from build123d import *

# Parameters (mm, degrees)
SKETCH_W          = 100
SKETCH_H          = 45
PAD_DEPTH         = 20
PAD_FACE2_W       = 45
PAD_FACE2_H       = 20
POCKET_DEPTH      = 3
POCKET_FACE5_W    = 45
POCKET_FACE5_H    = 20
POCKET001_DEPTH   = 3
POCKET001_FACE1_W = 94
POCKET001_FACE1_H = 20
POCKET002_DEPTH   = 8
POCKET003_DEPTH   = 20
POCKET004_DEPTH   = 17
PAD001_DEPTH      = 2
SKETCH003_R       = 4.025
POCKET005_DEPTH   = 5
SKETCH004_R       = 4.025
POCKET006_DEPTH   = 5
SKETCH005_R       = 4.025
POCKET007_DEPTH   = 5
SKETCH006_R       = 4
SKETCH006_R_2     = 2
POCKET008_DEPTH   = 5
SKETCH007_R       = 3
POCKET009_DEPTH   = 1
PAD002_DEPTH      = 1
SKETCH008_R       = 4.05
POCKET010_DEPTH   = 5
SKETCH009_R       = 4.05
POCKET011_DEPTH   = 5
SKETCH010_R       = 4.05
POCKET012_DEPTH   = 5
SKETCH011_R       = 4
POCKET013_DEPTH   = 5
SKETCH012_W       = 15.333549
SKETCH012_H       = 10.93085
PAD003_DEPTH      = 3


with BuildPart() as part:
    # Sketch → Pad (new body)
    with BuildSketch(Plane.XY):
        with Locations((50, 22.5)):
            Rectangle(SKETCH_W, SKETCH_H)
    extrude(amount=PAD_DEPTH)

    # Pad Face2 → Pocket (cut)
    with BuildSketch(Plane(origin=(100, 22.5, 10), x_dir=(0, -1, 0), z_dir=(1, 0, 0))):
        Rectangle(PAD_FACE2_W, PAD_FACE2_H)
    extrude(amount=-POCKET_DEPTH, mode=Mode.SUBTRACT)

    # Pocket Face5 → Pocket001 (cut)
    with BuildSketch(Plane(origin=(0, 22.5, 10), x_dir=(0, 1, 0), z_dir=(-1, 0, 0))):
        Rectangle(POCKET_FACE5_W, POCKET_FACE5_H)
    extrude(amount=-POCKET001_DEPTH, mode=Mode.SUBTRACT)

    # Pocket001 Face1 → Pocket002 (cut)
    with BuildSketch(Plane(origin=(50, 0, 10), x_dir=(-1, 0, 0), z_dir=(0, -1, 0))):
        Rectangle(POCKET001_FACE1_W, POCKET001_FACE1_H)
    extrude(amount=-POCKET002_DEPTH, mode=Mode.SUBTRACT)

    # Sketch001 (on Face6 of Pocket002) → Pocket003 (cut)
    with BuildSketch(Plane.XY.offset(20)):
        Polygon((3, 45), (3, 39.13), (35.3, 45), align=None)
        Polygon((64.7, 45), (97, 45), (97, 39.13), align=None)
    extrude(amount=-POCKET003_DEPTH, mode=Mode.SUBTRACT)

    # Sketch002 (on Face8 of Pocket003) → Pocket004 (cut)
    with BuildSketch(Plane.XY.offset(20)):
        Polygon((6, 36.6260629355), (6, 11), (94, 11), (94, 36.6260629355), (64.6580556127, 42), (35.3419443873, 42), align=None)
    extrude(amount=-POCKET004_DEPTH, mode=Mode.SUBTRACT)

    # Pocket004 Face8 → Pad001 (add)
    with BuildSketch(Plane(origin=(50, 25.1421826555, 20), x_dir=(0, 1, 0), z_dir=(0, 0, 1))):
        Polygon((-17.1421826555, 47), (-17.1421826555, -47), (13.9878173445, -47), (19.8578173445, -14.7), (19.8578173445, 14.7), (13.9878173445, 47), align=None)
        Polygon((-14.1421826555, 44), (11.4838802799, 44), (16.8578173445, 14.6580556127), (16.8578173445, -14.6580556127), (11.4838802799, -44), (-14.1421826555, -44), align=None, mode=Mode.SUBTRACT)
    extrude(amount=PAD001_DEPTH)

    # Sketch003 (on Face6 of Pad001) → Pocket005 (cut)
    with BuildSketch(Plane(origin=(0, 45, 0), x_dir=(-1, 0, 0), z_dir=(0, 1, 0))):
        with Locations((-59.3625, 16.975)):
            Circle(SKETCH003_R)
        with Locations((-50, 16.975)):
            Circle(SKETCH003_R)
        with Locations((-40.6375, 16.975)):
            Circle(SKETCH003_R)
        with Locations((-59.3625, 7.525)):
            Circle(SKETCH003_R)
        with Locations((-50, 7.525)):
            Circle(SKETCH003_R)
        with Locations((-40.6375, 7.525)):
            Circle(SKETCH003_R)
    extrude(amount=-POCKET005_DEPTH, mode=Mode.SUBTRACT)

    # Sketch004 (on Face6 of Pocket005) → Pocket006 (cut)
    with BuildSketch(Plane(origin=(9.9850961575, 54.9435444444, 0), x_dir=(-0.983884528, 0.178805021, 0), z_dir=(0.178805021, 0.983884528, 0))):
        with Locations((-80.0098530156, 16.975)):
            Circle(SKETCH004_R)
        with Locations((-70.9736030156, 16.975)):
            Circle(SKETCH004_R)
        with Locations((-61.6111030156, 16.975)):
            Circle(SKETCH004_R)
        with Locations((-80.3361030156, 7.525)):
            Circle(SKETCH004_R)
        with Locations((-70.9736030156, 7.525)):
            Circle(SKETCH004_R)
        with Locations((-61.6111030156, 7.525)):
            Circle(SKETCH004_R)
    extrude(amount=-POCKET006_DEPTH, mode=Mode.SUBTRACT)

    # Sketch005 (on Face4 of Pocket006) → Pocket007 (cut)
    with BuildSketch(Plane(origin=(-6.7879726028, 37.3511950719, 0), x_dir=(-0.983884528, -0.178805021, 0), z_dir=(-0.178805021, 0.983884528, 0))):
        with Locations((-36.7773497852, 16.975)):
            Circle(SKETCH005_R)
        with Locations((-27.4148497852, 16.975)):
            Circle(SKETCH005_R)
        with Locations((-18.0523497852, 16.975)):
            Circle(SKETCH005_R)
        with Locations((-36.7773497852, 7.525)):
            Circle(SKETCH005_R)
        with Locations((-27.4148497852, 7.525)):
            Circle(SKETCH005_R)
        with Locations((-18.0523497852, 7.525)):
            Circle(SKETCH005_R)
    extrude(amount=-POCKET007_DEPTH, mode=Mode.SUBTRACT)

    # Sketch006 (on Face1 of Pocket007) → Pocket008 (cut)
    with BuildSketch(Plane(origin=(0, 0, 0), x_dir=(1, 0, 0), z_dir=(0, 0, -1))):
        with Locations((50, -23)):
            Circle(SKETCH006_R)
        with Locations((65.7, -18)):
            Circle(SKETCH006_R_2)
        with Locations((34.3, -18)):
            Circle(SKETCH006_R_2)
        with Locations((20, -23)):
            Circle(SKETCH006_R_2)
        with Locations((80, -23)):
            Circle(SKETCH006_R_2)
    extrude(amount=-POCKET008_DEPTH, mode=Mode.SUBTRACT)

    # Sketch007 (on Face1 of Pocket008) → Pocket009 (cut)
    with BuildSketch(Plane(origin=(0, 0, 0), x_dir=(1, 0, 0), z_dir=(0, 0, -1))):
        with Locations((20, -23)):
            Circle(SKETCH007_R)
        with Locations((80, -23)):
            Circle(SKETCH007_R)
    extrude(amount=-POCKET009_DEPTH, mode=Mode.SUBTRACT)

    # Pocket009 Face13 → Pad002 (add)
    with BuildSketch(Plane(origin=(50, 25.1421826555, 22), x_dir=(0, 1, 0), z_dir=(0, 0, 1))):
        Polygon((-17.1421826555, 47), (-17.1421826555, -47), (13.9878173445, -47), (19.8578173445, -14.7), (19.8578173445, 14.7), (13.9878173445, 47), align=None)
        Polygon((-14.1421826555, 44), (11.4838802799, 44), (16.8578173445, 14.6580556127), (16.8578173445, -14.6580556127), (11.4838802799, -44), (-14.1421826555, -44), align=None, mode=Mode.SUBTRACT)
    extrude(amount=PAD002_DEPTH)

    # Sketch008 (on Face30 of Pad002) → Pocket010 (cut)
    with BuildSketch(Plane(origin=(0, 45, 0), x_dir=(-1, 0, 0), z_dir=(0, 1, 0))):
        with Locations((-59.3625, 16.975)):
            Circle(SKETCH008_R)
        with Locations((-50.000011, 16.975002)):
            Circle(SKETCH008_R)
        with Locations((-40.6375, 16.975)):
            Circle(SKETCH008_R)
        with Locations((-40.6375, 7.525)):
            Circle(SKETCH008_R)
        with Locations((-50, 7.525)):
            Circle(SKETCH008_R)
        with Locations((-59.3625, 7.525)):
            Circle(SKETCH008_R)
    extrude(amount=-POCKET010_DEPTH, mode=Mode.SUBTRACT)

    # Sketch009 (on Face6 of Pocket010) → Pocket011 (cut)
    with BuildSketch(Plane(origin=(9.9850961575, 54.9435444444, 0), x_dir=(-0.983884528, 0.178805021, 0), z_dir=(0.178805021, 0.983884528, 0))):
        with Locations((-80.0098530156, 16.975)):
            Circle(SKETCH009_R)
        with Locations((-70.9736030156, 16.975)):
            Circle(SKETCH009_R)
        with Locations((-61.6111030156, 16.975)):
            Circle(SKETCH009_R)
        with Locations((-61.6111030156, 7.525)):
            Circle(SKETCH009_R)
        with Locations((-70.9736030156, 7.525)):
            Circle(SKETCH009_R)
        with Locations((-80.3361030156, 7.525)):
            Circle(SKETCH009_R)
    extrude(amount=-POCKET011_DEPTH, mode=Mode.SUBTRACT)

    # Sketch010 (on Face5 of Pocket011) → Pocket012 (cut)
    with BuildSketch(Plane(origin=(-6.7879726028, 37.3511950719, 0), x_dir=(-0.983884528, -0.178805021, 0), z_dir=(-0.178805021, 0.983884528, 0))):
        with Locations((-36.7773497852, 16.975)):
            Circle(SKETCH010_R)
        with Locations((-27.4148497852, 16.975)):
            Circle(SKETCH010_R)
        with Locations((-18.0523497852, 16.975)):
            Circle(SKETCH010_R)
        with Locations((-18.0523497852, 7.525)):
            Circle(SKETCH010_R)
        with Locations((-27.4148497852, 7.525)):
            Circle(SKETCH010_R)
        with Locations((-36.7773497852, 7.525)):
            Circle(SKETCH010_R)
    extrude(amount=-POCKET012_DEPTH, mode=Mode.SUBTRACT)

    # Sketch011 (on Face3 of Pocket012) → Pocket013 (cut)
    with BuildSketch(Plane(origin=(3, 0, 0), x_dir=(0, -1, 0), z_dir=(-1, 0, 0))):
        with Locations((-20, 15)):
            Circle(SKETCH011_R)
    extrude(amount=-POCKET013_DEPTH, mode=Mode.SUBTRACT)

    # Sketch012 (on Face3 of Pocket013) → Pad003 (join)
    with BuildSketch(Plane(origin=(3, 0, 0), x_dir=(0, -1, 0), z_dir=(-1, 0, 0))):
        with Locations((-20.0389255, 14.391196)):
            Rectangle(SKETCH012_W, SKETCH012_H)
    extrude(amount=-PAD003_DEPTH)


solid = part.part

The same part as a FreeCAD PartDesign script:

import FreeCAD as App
import Part
import Sketcher
from FreeCAD import Vector

doc = App.newDocument("Part")
body = doc.addObject("PartDesign::Body", "Body")

# Sketch on XY plane
sketch1 = body.newObject("Sketcher::SketchObject", "Sketch")
sketch1.AttachmentSupport = (doc.getObject("XY_Plane"), [""])
sketch1.MapMode = "FlatFace"
sketch1.addGeometry([
    Part.LineSegment(Vector(0, 45, 0), Vector(0, 0, 0)),
    Part.LineSegment(Vector(0, 0, 0), Vector(100, 0, 0)),
    Part.LineSegment(Vector(100, 0, 0), Vector(100, 45, 0)),
    Part.LineSegment(Vector(100, 45, 0), Vector(0, 45, 0)),
], False)
sketch1.addConstraint([
    Sketcher.Constraint("Coincident", 0, 2, 1, 1),
    Sketcher.Constraint("Coincident", 1, 2, 2, 1),
    Sketcher.Constraint("Coincident", 2, 2, 3, 1),
    Sketcher.Constraint("Coincident", 3, 2, 0, 1),
    Sketcher.Constraint("Vertical", 0),
    Sketcher.Constraint("Horizontal", 1),
    Sketcher.Constraint("Vertical", 2),
    Sketcher.Constraint("Horizontal", 3),
    Sketcher.Constraint("Coincident", 0, 2, -1, 1),
    Sketcher.Constraint("DistanceX", 1, 1, 1, 2, 100.0),
    Sketcher.Constraint("DistanceY", 0, 2, 0, 1, 45.0),
])
pad1 = body.newObject("PartDesign::Pad", "Pad")
pad1.Profile = sketch1
pad1.Length = 20

# Sketch on YZ plane
sketch2 = body.newObject("Sketcher::SketchObject", "Sketch001")
sketch2.AttachmentSupport = (doc.getObject("YZ_Plane"), [""])
sketch2.MapMode = "FlatFace"
sketch2.AttachmentOffset = App.Placement(Vector(0, 0, 100), App.Rotation())
sketch2.addGeometry([
    Part.LineSegment(Vector(45, 0, 0), Vector(45, 20, 0)),
    Part.LineSegment(Vector(45, 20, 0), Vector(0, 20, 0)),
    Part.LineSegment(Vector(0, 20, 0), Vector(0, 0, 0)),
    Part.LineSegment(Vector(0, 0, 0), Vector(45, 0, 0)),
], False)
sketch2.addConstraint([
    Sketcher.Constraint("Coincident", 0, 2, 1, 1),
    Sketcher.Constraint("Coincident", 1, 2, 2, 1),
    Sketcher.Constraint("Coincident", 2, 2, 3, 1),
    Sketcher.Constraint("Coincident", 3, 2, 0, 1),
    Sketcher.Constraint("Vertical", 0),
    Sketcher.Constraint("Horizontal", 1),
    Sketcher.Constraint("Vertical", 2),
    Sketcher.Constraint("Horizontal", 3),
    Sketcher.Constraint("Coincident", 2, 2, -1, 1),
    Sketcher.Constraint("DistanceX", 1, 2, 1, 1, 45.0),
    Sketcher.Constraint("DistanceY", 0, 1, 0, 2, 20.0),
])
pocket1 = body.newObject("PartDesign::Pocket", "Pocket")
pocket1.Profile = sketch2
pocket1.Length = 3

# Sketch on YZ plane
sketch3 = body.newObject("Sketcher::SketchObject", "Sketch002")
sketch3.AttachmentSupport = (doc.getObject("YZ_Plane"), [""])
sketch3.MapMode = "FlatFace"
sketch3.addGeometry([
    Part.LineSegment(Vector(0, 0, 0), Vector(0, 20, 0)),
    Part.LineSegment(Vector(0, 20, 0), Vector(45, 20, 0)),
    Part.LineSegment(Vector(45, 20, 0), Vector(45, 0, 0)),
    Part.LineSegment(Vector(45, 0, 0), Vector(0, 0, 0)),
], False)
sketch3.addConstraint([
    Sketcher.Constraint("Coincident", 0, 2, 1, 1),
    Sketcher.Constraint("Coincident", 1, 2, 2, 1),
    Sketcher.Constraint("Coincident", 2, 2, 3, 1),
    Sketcher.Constraint("Coincident", 3, 2, 0, 1),
    Sketcher.Constraint("Vertical", 0),
    Sketcher.Constraint("Horizontal", 1),
    Sketcher.Constraint("Vertical", 2),
    Sketcher.Constraint("Horizontal", 3),
    Sketcher.Constraint("Coincident", 3, 2, -1, 1),
    Sketcher.Constraint("DistanceX", 1, 1, 1, 2, 45.0),
    Sketcher.Constraint("DistanceY", 0, 1, 0, 2, 20.0),
])
pocket2 = body.newObject("PartDesign::Pocket", "Pocket001")
pocket2.Profile = sketch3
pocket2.Length = 3
pocket2.Reversed = True

# Sketch on XZ plane
sketch4 = body.newObject("Sketcher::SketchObject", "Sketch003")
sketch4.AttachmentSupport = (doc.getObject("XZ_Plane"), [""])
sketch4.MapMode = "FlatFace"
sketch4.addGeometry([
    Part.LineSegment(Vector(97, 0, 0), Vector(97, 20, 0)),
    Part.LineSegment(Vector(97, 20, 0), Vector(3, 20, 0)),
    Part.LineSegment(Vector(3, 20, 0), Vector(3, 0, 0)),
    Part.LineSegment(Vector(3, 0, 0), Vector(97, 0, 0)),
], False)
sketch4.addConstraint([
    Sketcher.Constraint("Coincident", 0, 2, 1, 1),
    Sketcher.Constraint("Coincident", 1, 2, 2, 1),
    Sketcher.Constraint("Coincident", 2, 2, 3, 1),
    Sketcher.Constraint("Coincident", 3, 2, 0, 1),
    Sketcher.Constraint("Vertical", 0),
    Sketcher.Constraint("Horizontal", 1),
    Sketcher.Constraint("Vertical", 2),
    Sketcher.Constraint("Horizontal", 3),
    Sketcher.Constraint("PointOnObject", 2, 2, -1),
    Sketcher.Constraint("DistanceX", 1, 2, 1, 1, 94.0),
    Sketcher.Constraint("DistanceY", 0, 1, 0, 2, 20.0),
    Sketcher.Constraint("DistanceX", -1, 1, 0, 2, 97.0),
])
pocket3 = body.newObject("PartDesign::Pocket", "Pocket002")
pocket3.Profile = sketch4
pocket3.Length = 8

# Sketch on XY plane
sketch5 = body.newObject("Sketcher::SketchObject", "Sketch004")
sketch5.AttachmentSupport = (doc.getObject("XY_Plane"), [""])
sketch5.MapMode = "FlatFace"
sketch5.AttachmentOffset = App.Placement(Vector(0, 0, 20), App.Rotation())
sketch5.addGeometry([
    Part.LineSegment(Vector(3, 45, 0), Vector(3, 39.13, 0)),  # 0
    Part.LineSegment(Vector(3, 39.13, 0), Vector(35.3, 45, 0)),  # 1
    Part.LineSegment(Vector(35.3, 45, 0), Vector(3, 45, 0)),  # 2
    Part.LineSegment(Vector(97, 45, 0), Vector(64.7, 45, 0)),  # 3
    Part.LineSegment(Vector(64.7, 45, 0), Vector(97, 39.13, 0)),  # 4
    Part.LineSegment(Vector(97, 39.13, 0), Vector(97, 45, 0)),  # 5
], False)
sketch5.addConstraint([
    Sketcher.Constraint("Coincident", 0, 2, 1, 1),
    Sketcher.Constraint("Coincident", 1, 2, 2, 1),
    Sketcher.Constraint("Coincident", 2, 2, 0, 1),
    Sketcher.Constraint("Coincident", 3, 2, 4, 1),
    Sketcher.Constraint("Coincident", 4, 2, 5, 1),
    Sketcher.Constraint("Coincident", 5, 2, 3, 1),
    Sketcher.Constraint("Vertical", 0),
    Sketcher.Constraint("Horizontal", 2),
    Sketcher.Constraint("Horizontal", 3),
    Sketcher.Constraint("Vertical", 5),
    Sketcher.Constraint("Horizontal", 2, 2, 3, 2),
    Sketcher.Constraint("Horizontal", 0, 2, 4, 2),
    Sketcher.Constraint("Equal", 2, 3),
    Sketcher.Constraint("DistanceX", 2, 2, 2, 1, 32.3),
    Sketcher.Constraint("DistanceX", -1, 1, 0, 2, 3.0),
    Sketcher.Constraint("DistanceY", -1, 1, 1, 2, 45.0),
    Sketcher.Constraint("DistanceX", -1, 1, 4, 2, 97.0),
    Sketcher.Constraint("DistanceY", 0, 2, 0, 1, 5.87),
])
pocket4 = body.newObject("PartDesign::Pocket", "Pocket003")
pocket4.Profile = sketch5
pocket4.Length = 20

# Sketch on XY plane
sketch6 = body.newObject("Sketcher::SketchObject", "Sketch005")
sketch6.AttachmentSupport = (doc.getObject("XY_Plane"), [""])
sketch6.MapMode = "FlatFace"
sketch6.AttachmentOffset = App.Placement(Vector(0, 0, 20), App.Rotation())
sketch6.addGeometry([
    Part.LineSegment(Vector(6, 36.626063, 0), Vector(6, 11, 0)),  # 0
    Part.LineSegment(Vector(6, 11, 0), Vector(94, 11, 0)),  # 1
    Part.LineSegment(Vector(94, 11, 0), Vector(94, 36.626063, 0)),  # 2
    Part.LineSegment(Vector(94, 36.626063, 0), Vector(64.658056, 42, 0)),  # 3
    Part.LineSegment(Vector(64.658056, 42, 0), Vector(35.341944, 42, 0)),  # 4
    Part.LineSegment(Vector(35.341944, 42, 0), Vector(6, 36.626063, 0)),  # 5
], False)
sketch6.addConstraint([
    Sketcher.Constraint("Coincident", 0, 2, 1, 1),
    Sketcher.Constraint("Coincident", 1, 2, 2, 1),
    Sketcher.Constraint("Coincident", 2, 2, 3, 1),
    Sketcher.Constraint("Coincident", 3, 2, 4, 1),
    Sketcher.Constraint("Coincident", 4, 2, 5, 1),
    Sketcher.Constraint("Coincident", 5, 2, 0, 1),
    Sketcher.Constraint("Vertical", 0),
    Sketcher.Constraint("Horizontal", 1),
    Sketcher.Constraint("Vertical", 2),
    Sketcher.Constraint("Horizontal", 4),
    Sketcher.Constraint("Horizontal", 2, 2, 5, 2),
    Sketcher.Constraint("Equal", 3, 5),
    Sketcher.Constraint("DistanceX", 1, 1, 1, 2, 88.0),
    Sketcher.Constraint("DistanceX", -1, 1, 0, 2, 6.0),
    Sketcher.Constraint("DistanceY", -1, 1, 0, 2, 11.0),
    Sketcher.Constraint("DistanceY", -1, 1, 3, 2, 42.0),
    Sketcher.Constraint("Distance", 3, 29.83),
    Sketcher.Constraint("DistanceX", 4, 2, 4, 1, 29.316111),
])
pocket5 = body.newObject("PartDesign::Pocket", "Pocket004")
pocket5.Profile = sketch6
pocket5.Length = 17

# Sketch on XY plane
sketch7 = body.newObject("Sketcher::SketchObject", "Sketch006")
sketch7.AttachmentSupport = (doc.getObject("XY_Plane"), [""])
sketch7.MapMode = "FlatFace"
sketch7.AttachmentOffset = App.Placement(Vector(0, 0, 20), App.Rotation())
sketch7.addGeometry([
    Part.LineSegment(Vector(3, 8, 0), Vector(97, 8, 0)),  # 0
    Part.LineSegment(Vector(97, 8, 0), Vector(97, 39.13, 0)),  # 1
    Part.LineSegment(Vector(97, 39.13, 0), Vector(64.7, 45, 0)),  # 2
    Part.LineSegment(Vector(64.7, 45, 0), Vector(35.3, 45, 0)),  # 3
    Part.LineSegment(Vector(35.3, 45, 0), Vector(3, 39.13, 0)),  # 4
    Part.LineSegment(Vector(3, 39.13, 0), Vector(3, 8, 0)),  # 5
    Part.LineSegment(Vector(94, 11, 0), Vector(6, 11, 0)),  # 6
    Part.LineSegment(Vector(6, 11, 0), Vector(6, 36.626063, 0)),  # 7
    Part.LineSegment(Vector(6, 36.626063, 0), Vector(35.341944, 42, 0)),  # 8
    Part.LineSegment(Vector(35.341944, 42, 0), Vector(64.658056, 42, 0)),  # 9
    Part.LineSegment(Vector(64.658056, 42, 0), Vector(94, 36.626063, 0)),  # 10
    Part.LineSegment(Vector(94, 36.626063, 0), Vector(94, 11, 0)),  # 11
], False)
sketch7.addConstraint([
    Sketcher.Constraint("Coincident", 0, 2, 1, 1),
    Sketcher.Constraint("Coincident", 1, 2, 2, 1),
    Sketcher.Constraint("Coincident", 2, 2, 3, 1),
    Sketcher.Constraint("Coincident", 3, 2, 4, 1),
    Sketcher.Constraint("Coincident", 4, 2, 5, 1),
    Sketcher.Constraint("Coincident", 5, 2, 0, 1),
    Sketcher.Constraint("Coincident", 6, 2, 7, 1),
    Sketcher.Constraint("Coincident", 7, 2, 8, 1),
    Sketcher.Constraint("Coincident", 8, 2, 9, 1),
    Sketcher.Constraint("Coincident", 9, 2, 10, 1),
    Sketcher.Constraint("Coincident", 10, 2, 11, 1),
    Sketcher.Constraint("Coincident", 11, 2, 6, 1),
    Sketcher.Constraint("Horizontal", 0),
    Sketcher.Constraint("Vertical", 1),
    Sketcher.Constraint("Horizontal", 3),
    Sketcher.Constraint("Vertical", 5),
    Sketcher.Constraint("Horizontal", 6),
    Sketcher.Constraint("Vertical", 7),
    Sketcher.Constraint("Horizontal", 9),
    Sketcher.Constraint("Vertical", 11),
    Sketcher.Constraint("Horizontal", 1, 2, 4, 2),
    Sketcher.Constraint("Horizontal", 7, 2, 10, 2),
    Sketcher.Constraint("Equal", 2, 4),
    Sketcher.Constraint("Equal", 8, 10),
    Sketcher.Constraint("DistanceX", 0, 1, 0, 2, 94.0),
    Sketcher.Constraint("DistanceX", 6, 2, 6, 1, 88.0),
    Sketcher.Constraint("DistanceX", 3, 2, 3, 1, 29.4),
    Sketcher.Constraint("DistanceX", -1, 1, 0, 2, 97.0),
    Sketcher.Constraint("DistanceY", -1, 1, 0, 2, 8.0),
    Sketcher.Constraint("DistanceY", -1, 1, 2, 2, 45.0),
    Sketcher.Constraint("DistanceX", -1, 1, 6, 2, 6.0),
    Sketcher.Constraint("DistanceY", -1, 1, 6, 2, 11.0),
    Sketcher.Constraint("DistanceY", -1, 1, 8, 2, 42.0),
    Sketcher.Constraint("DistanceY", 1, 1, 1, 2, 31.13),
    Sketcher.Constraint("Distance", 8, 29.83),
    Sketcher.Constraint("DistanceX", 9, 1, 9, 2, 29.316111),
])
pad2 = body.newObject("PartDesign::Pad", "Pad001")
pad2.Profile = sketch7
pad2.Length = 2

# Sketch on XZ plane
sketch8 = body.newObject("Sketcher::SketchObject", "Sketch007")
sketch8.AttachmentSupport = (doc.getObject("XZ_Plane"), [""])
sketch8.MapMode = "FlatFace"
sketch8.AttachmentOffset = App.Placement(Vector(0, 0, -45), App.Rotation())
sketch8.addGeometry([
    Part.Circle(Vector(59.3625, 16.975, 0), Vector(0, 0, 1), 4.025),  # 0
    Part.Circle(Vector(50, 16.975, 0), Vector(0, 0, 1), 4.025),  # 1
    Part.Circle(Vector(40.6375, 16.975, 0), Vector(0, 0, 1), 4.025),  # 2
    Part.Circle(Vector(59.3625, 7.525, 0), Vector(0, 0, 1), 4.025),  # 3
    Part.Circle(Vector(50, 7.525, 0), Vector(0, 0, 1), 4.025),  # 4
    Part.Circle(Vector(40.6375, 7.525, 0), Vector(0, 0, 1), 4.025),  # 5
], False)
sketch8.addConstraint([
    Sketcher.Constraint("Equal", 0, 1),
    Sketcher.Constraint("Equal", 1, 2),
    Sketcher.Constraint("Equal", 2, 3),
    Sketcher.Constraint("Equal", 3, 4),
    Sketcher.Constraint("Equal", 4, 5),
    Sketcher.Constraint("Horizontal", 0, 3, 1, 3),
    Sketcher.Constraint("Horizontal", 1, 3, 2, 3),
    Sketcher.Constraint("Horizontal", 3, 3, 4, 3),
    Sketcher.Constraint("Horizontal", 4, 3, 5, 3),
    Sketcher.Constraint("Vertical", 0, 3, 3, 3),
    Sketcher.Constraint("Vertical", 1, 3, 4, 3),
    Sketcher.Constraint("Vertical", 2, 3, 5, 3),
    Sketcher.Constraint("Diameter", 0, 8.05),
    Sketcher.Constraint("DistanceX", -1, 1, 1, 3, 50.0),
    Sketcher.Constraint("DistanceY", 3, 3, 0, 3, 9.45),
    Sketcher.Constraint("DistanceY", -1, 1, 0, 3, 16.975),
    Sketcher.Constraint("DistanceX", 2, 3, 0, 3, 18.725),
    Sketcher.Constraint("DistanceX", -1, 1, 0, 3, 59.3625),
])
pocket6 = body.newObject("PartDesign::Pocket", "Pocket005")
pocket6.Profile = sketch8
pocket6.Length = 5
pocket6.Reversed = True

# Sketch on an angled plane
sketch9 = body.newObject("Sketcher::SketchObject", "Sketch008")
sketch9.Placement = App.Placement(Vector(9.985096, 54.943544, 0), App.Rotation(Vector(-0.983884528, 0.178805021, 0), Vector(0, 0, 1), Vector(0.178805021, 0.983884528, 0), "ZXY"))
sketch9.addGeometry([
    Part.Circle(Vector(-80.009853, 16.975, 0), Vector(0, 0, 1), 4.025),  # 0
    Part.Circle(Vector(-70.973603, 16.975, 0), Vector(0, 0, 1), 4.025),  # 1
    Part.Circle(Vector(-61.611103, 16.975, 0), Vector(0, 0, 1), 4.025),  # 2
    Part.Circle(Vector(-80.336103, 7.525, 0), Vector(0, 0, 1), 4.025),  # 3
    Part.Circle(Vector(-70.973603, 7.525, 0), Vector(0, 0, 1), 4.025),  # 4
    Part.Circle(Vector(-61.611103, 7.525, 0), Vector(0, 0, 1), 4.025),  # 5
], False)
sketch9.addConstraint([
    Sketcher.Constraint("Equal", 0, 1),
    Sketcher.Constraint("Equal", 1, 2),
    Sketcher.Constraint("Equal", 2, 3),
    Sketcher.Constraint("Equal", 3, 4),
    Sketcher.Constraint("Equal", 4, 5),
    Sketcher.Constraint("Horizontal", 0, 3, 1, 3),
    Sketcher.Constraint("Horizontal", 1, 3, 2, 3),
    Sketcher.Constraint("Horizontal", 3, 3, 4, 3),
    Sketcher.Constraint("Horizontal", 4, 3, 5, 3),
    Sketcher.Constraint("Vertical", 1, 3, 4, 3),
    Sketcher.Constraint("Vertical", 2, 3, 5, 3),
    Sketcher.Constraint("Diameter", 0, 8.05),
    Sketcher.Constraint("DistanceY", 3, 3, 0, 3, 9.45),
    Sketcher.Constraint("DistanceY", -1, 1, 0, 3, 16.975),
    Sketcher.Constraint("DistanceX", 3, 3, 2, 3, 18.725),
    Sketcher.Constraint("DistanceX", 1, 3, 2, 3, 9.3625),
    Sketcher.Constraint("DistanceX", 0, 3, 1, 3, 9.03625),
    Sketcher.Constraint("DistanceX", 0, 3, -1, 1, 80.009853),
])
pocket7 = body.newObject("PartDesign::Pocket", "Pocket006")
pocket7.Profile = sketch9
pocket7.Length = 5

# Sketch on an angled plane
sketch10 = body.newObject("Sketcher::SketchObject", "Sketch009")
sketch10.Placement = App.Placement(Vector(-6.787973, 37.351195, 0), App.Rotation(Vector(-0.983884528, -0.178805021, 0), Vector(0, 0, 1), Vector(-0.178805021, 0.983884528, 0), "ZXY"))
sketch10.addGeometry([
    Part.Circle(Vector(-36.77735, 16.975, 0), Vector(0, 0, 1), 4.025),  # 0
    Part.Circle(Vector(-27.41485, 16.975, 0), Vector(0, 0, 1), 4.025),  # 1
    Part.Circle(Vector(-18.05235, 16.975, 0), Vector(0, 0, 1), 4.025),  # 2
    Part.Circle(Vector(-36.77735, 7.525, 0), Vector(0, 0, 1), 4.025),  # 3
    Part.Circle(Vector(-27.41485, 7.525, 0), Vector(0, 0, 1), 4.025),  # 4
    Part.Circle(Vector(-18.05235, 7.525, 0), Vector(0, 0, 1), 4.025),  # 5
], False)
sketch10.addConstraint([
    Sketcher.Constraint("Equal", 0, 1),
    Sketcher.Constraint("Equal", 1, 2),
    Sketcher.Constraint("Equal", 2, 3),
    Sketcher.Constraint("Equal", 3, 4),
    Sketcher.Constraint("Equal", 4, 5),
    Sketcher.Constraint("Horizontal", 0, 3, 1, 3),
    Sketcher.Constraint("Horizontal", 1, 3, 2, 3),
    Sketcher.Constraint("Horizontal", 3, 3, 4, 3),
    Sketcher.Constraint("Horizontal", 4, 3, 5, 3),
    Sketcher.Constraint("Vertical", 0, 3, 3, 3),
    Sketcher.Constraint("Vertical", 1, 3, 4, 3),
    Sketcher.Constraint("Vertical", 2, 3, 5, 3),
    Sketcher.Constraint("Diameter", 0, 8.05),
    Sketcher.Constraint("DistanceY", 3, 3, 0, 3, 9.45),
    Sketcher.Constraint("DistanceY", -1, 1, 0, 3, 16.975),
    Sketcher.Constraint("DistanceX", 0, 3, 2, 3, 18.725),
    Sketcher.Constraint("DistanceX", 0, 3, 1, 3, 9.3625),
    Sketcher.Constraint("DistanceX", 0, 3, -1, 1, 36.77735),
])
pocket8 = body.newObject("PartDesign::Pocket", "Pocket007")
pocket8.Profile = sketch10
pocket8.Length = 5

# Sketch on XY plane
sketch11 = body.newObject("Sketcher::SketchObject", "Sketch010")
sketch11.AttachmentSupport = (doc.getObject("XY_Plane"), [""])
sketch11.MapMode = "FlatFace"
sketch11.addGeometry([
    Part.Circle(Vector(50, 23, 0), Vector(0, 0, 1), 4),  # 0
    Part.Circle(Vector(65.7, 18, 0), Vector(0, 0, 1), 2),  # 1
    Part.Circle(Vector(34.3, 18, 0), Vector(0, 0, 1), 2),  # 2
    Part.Circle(Vector(20, 23, 0), Vector(0, 0, 1), 2),  # 3
    Part.Circle(Vector(80, 23, 0), Vector(0, 0, 1), 2),  # 4
], False)
sketch11.addConstraint([
    Sketcher.Constraint("Equal", 1, 2),
    Sketcher.Constraint("Equal", 2, 3),
    Sketcher.Constraint("Equal", 3, 4),
    Sketcher.Constraint("Horizontal", 1, 3, 2, 3),
    Sketcher.Constraint("Horizontal", 0, 3, 3, 3),
    Sketcher.Constraint("Horizontal", 3, 3, 4, 3),
    Sketcher.Constraint("Diameter", 0, 8.0),
    Sketcher.Constraint("Diameter", 1, 4.0),
    Sketcher.Constraint("DistanceX", -1, 1, 0, 3, 50.0),
    Sketcher.Constraint("DistanceY", -1, 1, 0, 3, 23.0),
    Sketcher.Constraint("DistanceY", -1, 1, 1, 3, 18.0),
    Sketcher.Constraint("DistanceX", -1, 1, 3, 3, 20.0),
    Sketcher.Constraint("DistanceX", -1, 1, 4, 3, 80.0),
    Sketcher.Constraint("DistanceX", -1, 1, 1, 3, 65.7),
    Sketcher.Constraint("DistanceX", -1, 1, 2, 3, 34.3),
])
pocket9 = body.newObject("PartDesign::Pocket", "Pocket008")
pocket9.Profile = sketch11
pocket9.Length = 5
pocket9.Reversed = True

# Sketch on XY plane
sketch12 = body.newObject("Sketcher::SketchObject", "Sketch011")
sketch12.AttachmentSupport = (doc.getObject("XY_Plane"), [""])
sketch12.MapMode = "FlatFace"
sketch12.addGeometry([
    Part.Circle(Vector(20, 23, 0), Vector(0, 0, 1), 3),
    Part.Circle(Vector(80, 23, 0), Vector(0, 0, 1), 3),
], False)
sketch12.addConstraint([
    Sketcher.Constraint("Equal", 0, 1),
    Sketcher.Constraint("Horizontal", 0, 3, 1, 3),
    Sketcher.Constraint("Diameter", 0, 6.0),
    Sketcher.Constraint("DistanceX", -1, 1, 0, 3, 20.0),
    Sketcher.Constraint("DistanceY", -1, 1, 0, 3, 23.0),
    Sketcher.Constraint("DistanceX", -1, 1, 1, 3, 80.0),
])
pocket10 = body.newObject("PartDesign::Pocket", "Pocket009")
pocket10.Profile = sketch12
pocket10.Length = 1
pocket10.Reversed = True

# Sketch on XY plane
sketch13 = body.newObject("Sketcher::SketchObject", "Sketch012")
sketch13.AttachmentSupport = (doc.getObject("XY_Plane"), [""])
sketch13.MapMode = "FlatFace"
sketch13.AttachmentOffset = App.Placement(Vector(0, 0, 22), App.Rotation())
sketch13.addGeometry([
    Part.LineSegment(Vector(3, 8, 0), Vector(97, 8, 0)),  # 0
    Part.LineSegment(Vector(97, 8, 0), Vector(97, 39.13, 0)),  # 1
    Part.LineSegment(Vector(97, 39.13, 0), Vector(64.7, 45, 0)),  # 2
    Part.LineSegment(Vector(64.7, 45, 0), Vector(35.3, 45, 0)),  # 3
    Part.LineSegment(Vector(35.3, 45, 0), Vector(3, 39.13, 0)),  # 4
    Part.LineSegment(Vector(3, 39.13, 0), Vector(3, 8, 0)),  # 5
    Part.LineSegment(Vector(94, 11, 0), Vector(6, 11, 0)),  # 6
    Part.LineSegment(Vector(6, 11, 0), Vector(6, 36.626063, 0)),  # 7
    Part.LineSegment(Vector(6, 36.626063, 0), Vector(35.341944, 42, 0)),  # 8
    Part.LineSegment(Vector(35.341944, 42, 0), Vector(64.658056, 42, 0)),  # 9
    Part.LineSegment(Vector(64.658056, 42, 0), Vector(94, 36.626063, 0)),  # 10
    Part.LineSegment(Vector(94, 36.626063, 0), Vector(94, 11, 0)),  # 11
], False)
sketch13.addConstraint([
    Sketcher.Constraint("Coincident", 0, 2, 1, 1),
    Sketcher.Constraint("Coincident", 1, 2, 2, 1),
    Sketcher.Constraint("Coincident", 2, 2, 3, 1),
    Sketcher.Constraint("Coincident", 3, 2, 4, 1),
    Sketcher.Constraint("Coincident", 4, 2, 5, 1),
    Sketcher.Constraint("Coincident", 5, 2, 0, 1),
    Sketcher.Constraint("Coincident", 6, 2, 7, 1),
    Sketcher.Constraint("Coincident", 7, 2, 8, 1),
    Sketcher.Constraint("Coincident", 8, 2, 9, 1),
    Sketcher.Constraint("Coincident", 9, 2, 10, 1),
    Sketcher.Constraint("Coincident", 10, 2, 11, 1),
    Sketcher.Constraint("Coincident", 11, 2, 6, 1),
    Sketcher.Constraint("Horizontal", 0),
    Sketcher.Constraint("Vertical", 1),
    Sketcher.Constraint("Horizontal", 3),
    Sketcher.Constraint("Vertical", 5),
    Sketcher.Constraint("Horizontal", 6),
    Sketcher.Constraint("Vertical", 7),
    Sketcher.Constraint("Horizontal", 9),
    Sketcher.Constraint("Vertical", 11),
    Sketcher.Constraint("Horizontal", 1, 2, 4, 2),
    Sketcher.Constraint("Horizontal", 7, 2, 10, 2),
    Sketcher.Constraint("Equal", 2, 4),
    Sketcher.Constraint("Equal", 8, 10),
    Sketcher.Constraint("DistanceX", 0, 1, 0, 2, 94.0),
    Sketcher.Constraint("DistanceX", 6, 2, 6, 1, 88.0),
    Sketcher.Constraint("DistanceX", 3, 2, 3, 1, 29.4),
    Sketcher.Constraint("DistanceX", -1, 1, 0, 2, 97.0),
    Sketcher.Constraint("DistanceY", -1, 1, 0, 2, 8.0),
    Sketcher.Constraint("DistanceY", -1, 1, 2, 2, 45.0),
    Sketcher.Constraint("DistanceX", -1, 1, 6, 2, 6.0),
    Sketcher.Constraint("DistanceY", -1, 1, 6, 2, 11.0),
    Sketcher.Constraint("DistanceY", -1, 1, 8, 2, 42.0),
    Sketcher.Constraint("DistanceY", 1, 1, 1, 2, 31.13),
    Sketcher.Constraint("Distance", 8, 29.83),
    Sketcher.Constraint("DistanceX", 9, 1, 9, 2, 29.316111),
])
pad3 = body.newObject("PartDesign::Pad", "Pad002")
pad3.Profile = sketch13
pad3.Length = 1

# Sketch on XZ plane
sketch14 = body.newObject("Sketcher::SketchObject", "Sketch013")
sketch14.AttachmentSupport = (doc.getObject("XZ_Plane"), [""])
sketch14.MapMode = "FlatFace"
sketch14.AttachmentOffset = App.Placement(Vector(0, 0, -45), App.Rotation())
sketch14.addGeometry([
    Part.Circle(Vector(59.3625, 16.975, 0), Vector(0, 0, 1), 4.05),  # 0
    Part.Circle(Vector(50.000011, 16.975002, 0), Vector(0, 0, 1), 4.05),  # 1
    Part.Circle(Vector(40.6375, 16.975, 0), Vector(0, 0, 1), 4.05),  # 2
    Part.Circle(Vector(40.6375, 7.525, 0), Vector(0, 0, 1), 4.05),  # 3
    Part.Circle(Vector(50, 7.525, 0), Vector(0, 0, 1), 4.05),  # 4
    Part.Circle(Vector(59.3625, 7.525, 0), Vector(0, 0, 1), 4.05),  # 5
], False)
sketch14.addConstraint([
    Sketcher.Constraint("Equal", 0, 1),
    Sketcher.Constraint("Equal", 1, 2),
    Sketcher.Constraint("Equal", 2, 3),
    Sketcher.Constraint("Equal", 3, 4),
    Sketcher.Constraint("Equal", 4, 5),
    Sketcher.Constraint("Horizontal", 0, 3, 1, 3),
    Sketcher.Constraint("Horizontal", 1, 3, 2, 3),
    Sketcher.Constraint("Horizontal", 3, 3, 4, 3),
    Sketcher.Constraint("Horizontal", 4, 3, 5, 3),
    Sketcher.Constraint("Vertical", 2, 3, 3, 3),
    Sketcher.Constraint("Vertical", 0, 3, 5, 3),
    Sketcher.Constraint("Diameter", 0, 8.1),
    Sketcher.Constraint("DistanceX", -1, 1, 4, 3, 50.0),
    Sketcher.Constraint("DistanceY", 3, 3, 2, 3, 9.45),
    Sketcher.Constraint("DistanceY", -1, 1, 0, 3, 16.975),
    Sketcher.Constraint("DistanceX", 2, 3, 0, 3, 18.725),
    Sketcher.Constraint("DistanceX", -1, 1, 0, 3, 59.3625),
    Sketcher.Constraint("DistanceX", -1, 1, 1, 3, 50.000011),
])
pocket11 = body.newObject("PartDesign::Pocket", "Pocket010")
pocket11.Profile = sketch14
pocket11.Length = 5
pocket11.Reversed = True

# Sketch on an angled plane
sketch15 = body.newObject("Sketcher::SketchObject", "Sketch014")
sketch15.Placement = App.Placement(Vector(9.985096, 54.943544, 0), App.Rotation(Vector(-0.983884528, 0.178805021, 0), Vector(0, 0, 1), Vector(0.178805021, 0.983884528, 0), "ZXY"))
sketch15.addGeometry([
    Part.Circle(Vector(-80.009853, 16.975, 0), Vector(0, 0, 1), 4.05),  # 0
    Part.Circle(Vector(-70.973603, 16.975, 0), Vector(0, 0, 1), 4.05),  # 1
    Part.Circle(Vector(-61.611103, 16.975, 0), Vector(0, 0, 1), 4.05),  # 2
    Part.Circle(Vector(-61.611103, 7.525, 0), Vector(0, 0, 1), 4.05),  # 3
    Part.Circle(Vector(-70.973603, 7.525, 0), Vector(0, 0, 1), 4.05),  # 4
    Part.Circle(Vector(-80.336103, 7.525, 0), Vector(0, 0, 1), 4.05),  # 5
], False)
sketch15.addConstraint([
    Sketcher.Constraint("Equal", 0, 1),
    Sketcher.Constraint("Equal", 1, 2),
    Sketcher.Constraint("Equal", 2, 3),
    Sketcher.Constraint("Equal", 3, 4),
    Sketcher.Constraint("Equal", 4, 5),
    Sketcher.Constraint("Horizontal", 0, 3, 1, 3),
    Sketcher.Constraint("Horizontal", 1, 3, 2, 3),
    Sketcher.Constraint("Horizontal", 3, 3, 4, 3),
    Sketcher.Constraint("Horizontal", 4, 3, 5, 3),
    Sketcher.Constraint("Vertical", 2, 3, 3, 3),
    Sketcher.Constraint("Vertical", 1, 3, 4, 3),
    Sketcher.Constraint("Diameter", 0, 8.1),
    Sketcher.Constraint("DistanceY", 3, 3, 2, 3, 9.45),
    Sketcher.Constraint("DistanceY", -1, 1, 0, 3, 16.975),
    Sketcher.Constraint("DistanceX", 5, 3, 3, 3, 18.725),
    Sketcher.Constraint("DistanceX", 1, 3, 2, 3, 9.3625),
    Sketcher.Constraint("DistanceX", 0, 3, 1, 3, 9.03625),
    Sketcher.Constraint("DistanceX", 0, 3, -1, 1, 80.009853),
])
pocket12 = body.newObject("PartDesign::Pocket", "Pocket011")
pocket12.Profile = sketch15
pocket12.Length = 5

# Sketch on an angled plane
sketch16 = body.newObject("Sketcher::SketchObject", "Sketch015")
sketch16.Placement = App.Placement(Vector(-6.787973, 37.351195, 0), App.Rotation(Vector(-0.983884528, -0.178805021, 0), Vector(0, 0, 1), Vector(-0.178805021, 0.983884528, 0), "ZXY"))
sketch16.addGeometry([
    Part.Circle(Vector(-36.77735, 16.975, 0), Vector(0, 0, 1), 4.05),  # 0
    Part.Circle(Vector(-27.41485, 16.975, 0), Vector(0, 0, 1), 4.05),  # 1
    Part.Circle(Vector(-18.05235, 16.975, 0), Vector(0, 0, 1), 4.05),  # 2
    Part.Circle(Vector(-18.05235, 7.525, 0), Vector(0, 0, 1), 4.05),  # 3
    Part.Circle(Vector(-27.41485, 7.525, 0), Vector(0, 0, 1), 4.05),  # 4
    Part.Circle(Vector(-36.77735, 7.525, 0), Vector(0, 0, 1), 4.05),  # 5
], False)
sketch16.addConstraint([
    Sketcher.Constraint("Equal", 0, 1),
    Sketcher.Constraint("Equal", 1, 2),
    Sketcher.Constraint("Equal", 2, 3),
    Sketcher.Constraint("Equal", 3, 4),
    Sketcher.Constraint("Equal", 4, 5),
    Sketcher.Constraint("Horizontal", 0, 3, 1, 3),
    Sketcher.Constraint("Horizontal", 1, 3, 2, 3),
    Sketcher.Constraint("Horizontal", 3, 3, 4, 3),
    Sketcher.Constraint("Horizontal", 4, 3, 5, 3),
    Sketcher.Constraint("Vertical", 2, 3, 3, 3),
    Sketcher.Constraint("Vertical", 1, 3, 4, 3),
    Sketcher.Constraint("Vertical", 0, 3, 5, 3),
    Sketcher.Constraint("Diameter", 0, 8.1),
    Sketcher.Constraint("DistanceY", 3, 3, 2, 3, 9.45),
    Sketcher.Constraint("DistanceY", -1, 1, 0, 3, 16.975),
    Sketcher.Constraint("DistanceX", 0, 3, 2, 3, 18.725),
    Sketcher.Constraint("DistanceX", 0, 3, 1, 3, 9.3625),
    Sketcher.Constraint("DistanceX", 0, 3, -1, 1, 36.77735),
])
pocket13 = body.newObject("PartDesign::Pocket", "Pocket012")
pocket13.Profile = sketch16
pocket13.Length = 5

# Sketch on YZ plane
sketch17 = body.newObject("Sketcher::SketchObject", "Sketch016")
sketch17.AttachmentSupport = (doc.getObject("YZ_Plane"), [""])
sketch17.MapMode = "FlatFace"
sketch17.AttachmentOffset = App.Placement(Vector(0, 0, 3), App.Rotation())
sketch17.addGeometry(Part.Circle(Vector(20, 15, 0), Vector(0, 0, 1), 4), False)
sketch17.addConstraint([
    Sketcher.Constraint("Diameter", 0, 8.0),
    Sketcher.Constraint("DistanceX", -1, 1, 0, 3, 20.0),
    Sketcher.Constraint("DistanceY", -1, 1, 0, 3, 15.0),
])
pocket14 = body.newObject("PartDesign::Pocket", "Pocket013")
pocket14.Profile = sketch17
pocket14.Length = 5
pocket14.Reversed = True

# Sketch on YZ plane
sketch18 = body.newObject("Sketcher::SketchObject", "Sketch017")
sketch18.AttachmentSupport = (doc.getObject("YZ_Plane"), [""])
sketch18.MapMode = "FlatFace"
sketch18.AttachmentOffset = App.Placement(Vector(0, 0, 3), App.Rotation())
sketch18.addGeometry([
    Part.LineSegment(Vector(27.7057, 19.856621, 0), Vector(27.7057, 8.925771, 0)),
    Part.LineSegment(Vector(27.7057, 8.925771, 0), Vector(12.372151, 8.925771, 0)),
    Part.LineSegment(Vector(12.372151, 8.925771, 0), Vector(12.372151, 19.856621, 0)),
    Part.LineSegment(Vector(12.372151, 19.856621, 0), Vector(27.7057, 19.856621, 0)),
], False)
sketch18.addConstraint([
    Sketcher.Constraint("Coincident", 0, 2, 1, 1),
    Sketcher.Constraint("Coincident", 1, 2, 2, 1),
    Sketcher.Constraint("Coincident", 2, 2, 3, 1),
    Sketcher.Constraint("Coincident", 3, 2, 0, 1),
    Sketcher.Constraint("Vertical", 0),
    Sketcher.Constraint("Horizontal", 1),
    Sketcher.Constraint("Vertical", 2),
    Sketcher.Constraint("Horizontal", 3),
    Sketcher.Constraint("DistanceX", 1, 2, 1, 1, 15.333549),
    Sketcher.Constraint("DistanceY", 0, 2, 0, 1, 10.93085),
    Sketcher.Constraint("DistanceX", -1, 1, 0, 2, 27.7057),
    Sketcher.Constraint("DistanceY", -1, 1, 0, 2, 8.925771),
])
pad4 = body.newObject("PartDesign::Pad", "Pad003")
pad4.Profile = sketch18
pad4.Length = 3

doc.recompute()
